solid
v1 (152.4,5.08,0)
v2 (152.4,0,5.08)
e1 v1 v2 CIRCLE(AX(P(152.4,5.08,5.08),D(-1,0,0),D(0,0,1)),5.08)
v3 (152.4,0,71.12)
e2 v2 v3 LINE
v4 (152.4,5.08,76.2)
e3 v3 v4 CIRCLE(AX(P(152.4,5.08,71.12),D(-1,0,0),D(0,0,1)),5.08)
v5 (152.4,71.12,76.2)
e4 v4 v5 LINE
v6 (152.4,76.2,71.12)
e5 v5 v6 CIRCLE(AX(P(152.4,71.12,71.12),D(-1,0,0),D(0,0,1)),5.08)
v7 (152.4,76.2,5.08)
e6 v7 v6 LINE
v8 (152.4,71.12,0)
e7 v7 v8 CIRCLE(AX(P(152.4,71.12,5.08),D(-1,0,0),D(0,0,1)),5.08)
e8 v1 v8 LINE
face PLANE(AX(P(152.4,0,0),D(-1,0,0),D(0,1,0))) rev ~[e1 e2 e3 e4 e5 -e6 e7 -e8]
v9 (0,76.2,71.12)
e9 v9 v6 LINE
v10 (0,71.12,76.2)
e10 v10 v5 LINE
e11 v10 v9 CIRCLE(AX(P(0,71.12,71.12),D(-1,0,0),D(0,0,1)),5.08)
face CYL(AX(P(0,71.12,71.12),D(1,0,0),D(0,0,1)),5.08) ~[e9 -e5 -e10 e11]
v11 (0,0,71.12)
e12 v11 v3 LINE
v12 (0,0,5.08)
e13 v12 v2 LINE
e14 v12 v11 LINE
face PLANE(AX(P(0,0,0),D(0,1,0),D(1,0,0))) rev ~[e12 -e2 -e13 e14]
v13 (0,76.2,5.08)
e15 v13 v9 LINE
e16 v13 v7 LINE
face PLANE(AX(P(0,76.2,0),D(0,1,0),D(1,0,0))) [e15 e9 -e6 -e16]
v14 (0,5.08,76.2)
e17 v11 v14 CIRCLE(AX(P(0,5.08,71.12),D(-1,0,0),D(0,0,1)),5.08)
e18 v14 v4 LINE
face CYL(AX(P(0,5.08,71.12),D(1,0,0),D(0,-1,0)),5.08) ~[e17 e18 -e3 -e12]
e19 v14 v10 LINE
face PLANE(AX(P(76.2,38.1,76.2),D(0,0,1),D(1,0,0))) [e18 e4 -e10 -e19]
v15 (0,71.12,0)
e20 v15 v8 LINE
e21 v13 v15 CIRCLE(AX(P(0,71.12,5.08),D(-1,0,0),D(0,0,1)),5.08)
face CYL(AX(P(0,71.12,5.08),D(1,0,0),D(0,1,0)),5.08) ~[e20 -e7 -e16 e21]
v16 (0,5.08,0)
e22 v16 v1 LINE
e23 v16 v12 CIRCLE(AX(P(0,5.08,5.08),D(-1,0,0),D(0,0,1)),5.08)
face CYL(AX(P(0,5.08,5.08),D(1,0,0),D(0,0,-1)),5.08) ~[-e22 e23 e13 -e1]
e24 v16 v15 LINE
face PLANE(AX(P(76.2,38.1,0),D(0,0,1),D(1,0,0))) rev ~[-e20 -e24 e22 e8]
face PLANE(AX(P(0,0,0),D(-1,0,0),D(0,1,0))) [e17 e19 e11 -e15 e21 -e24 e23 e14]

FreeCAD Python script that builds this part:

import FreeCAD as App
import Part
import Sketcher
from FreeCAD import Vector
Q = App.Units.Quantity


def edges_at(feature, points):
    """Names of the edges that pass closest to the given points."""
    edges = feature.Shape.Edges
    near = lambda p: min(range(len(edges)), key=lambda i: edges[i].distToShape(Part.Vertex(*p))[0])
    return sorted({f"Edge{near(p) + 1}" for p in points})

doc = App.newDocument("Part")
params = doc.addObject("Spreadsheet::Sheet", "Params")
for row, (alias, value) in enumerate([
    ("sketch1_width", "6 in"),
    ("sketch1_height", "3 in"),
    ("pad1_length", "3 in"),
    ("fillet_radius", "0.2 in"),
    ("fillet2_radius", "0.2 in"),
    ("fillet3_radius", "0.2 in"),
    ("fillet4_radius", "0.2 in"),
], start=1):
    params.set(f"A{row}", alias)
    params.set(f"B{row}", "=" + value)
    params.setAlias(f"B{row}", alias)

body = doc.addObject("PartDesign::Body", "Body")

# Sketch on XY plane
sketch1 = body.newObject("Sketcher::SketchObject", "Sketch")
sketch1.AttachmentSupport = (doc.getObject("XY_Plane"), [""])
sketch1.MapMode = "FlatFace"
sketch1.addGeometry([
    Part.LineSegment(Vector(0, 76, 0), Vector(0, 0, 0)),
    Part.LineSegment(Vector(0, 0, 0), Vector(152, 0, 0)),
    Part.LineSegment(Vector(152, 0, 0), Vector(152, 76, 0)),
    Part.LineSegment(Vector(152, 76, 0), Vector(0, 76, 0)),
], False)
sketch1.addConstraint([
    Sketcher.Constraint("Coincident", 0, 2, 1, 1),
    Sketcher.Constraint("Coincident", 1, 2, 2, 1),
    Sketcher.Constraint("Coincident", 2, 2, 3, 1),
    Sketcher.Constraint("Coincident", 3, 2, 0, 1),
    Sketcher.Constraint("Vertical", 0),
    Sketcher.Constraint("Horizontal", 1),
    Sketcher.Constraint("Vertical", 2),
    Sketcher.Constraint("Horizontal", 3),
    Sketcher.Constraint("Coincident", 0, 2, -1, 1),
    Sketcher.Constraint("DistanceX", 1, 1, 1, 2, Q("6 in")),
    Sketcher.Constraint("DistanceY", 0, 2, 0, 1, Q("3 in")),
])
sketch1.setExpression("Constraints[9]", "Params.sketch1_width")
sketch1.setExpression("Constraints[10]", "Params.sketch1_height")
pad1 = body.newObject("PartDesign::Pad", "Pad")
pad1.Profile = sketch1
pad1.setExpression("Length", "Params.pad1_length")
doc.recompute()

fillet = body.newObject("PartDesign::Fillet", "Fillet")
fillet.Base = (pad1, edges_at(pad1, [(76.2, 0, 76.2)]))
fillet.setExpression("Radius", "Params.fillet_radius")
doc.recompute()

fillet2 = body.newObject("PartDesign::Fillet", "Fillet001")
fillet2.Base = (fillet, edges_at(fillet, [(76.2, 76.2, 76.2)]))
fillet2.setExpression("Radius", "Params.fillet2_radius")
doc.recompute()

fillet3 = body.newObject("PartDesign::Fillet", "Fillet002")
fillet3.Base = (fillet2, edges_at(fillet2, [(76.2, 76.2, 0)]))
fillet3.setExpression("Radius", "Params.fillet3_radius")
doc.recompute()

fillet4 = body.newObject("PartDesign::Fillet", "Fillet003")
fillet4.Base = (fillet3, edges_at(fillet3, [(76.2, 0, 0)]))
fillet4.setExpression("Radius", "Params.fillet4_radius")

doc.recompute()
